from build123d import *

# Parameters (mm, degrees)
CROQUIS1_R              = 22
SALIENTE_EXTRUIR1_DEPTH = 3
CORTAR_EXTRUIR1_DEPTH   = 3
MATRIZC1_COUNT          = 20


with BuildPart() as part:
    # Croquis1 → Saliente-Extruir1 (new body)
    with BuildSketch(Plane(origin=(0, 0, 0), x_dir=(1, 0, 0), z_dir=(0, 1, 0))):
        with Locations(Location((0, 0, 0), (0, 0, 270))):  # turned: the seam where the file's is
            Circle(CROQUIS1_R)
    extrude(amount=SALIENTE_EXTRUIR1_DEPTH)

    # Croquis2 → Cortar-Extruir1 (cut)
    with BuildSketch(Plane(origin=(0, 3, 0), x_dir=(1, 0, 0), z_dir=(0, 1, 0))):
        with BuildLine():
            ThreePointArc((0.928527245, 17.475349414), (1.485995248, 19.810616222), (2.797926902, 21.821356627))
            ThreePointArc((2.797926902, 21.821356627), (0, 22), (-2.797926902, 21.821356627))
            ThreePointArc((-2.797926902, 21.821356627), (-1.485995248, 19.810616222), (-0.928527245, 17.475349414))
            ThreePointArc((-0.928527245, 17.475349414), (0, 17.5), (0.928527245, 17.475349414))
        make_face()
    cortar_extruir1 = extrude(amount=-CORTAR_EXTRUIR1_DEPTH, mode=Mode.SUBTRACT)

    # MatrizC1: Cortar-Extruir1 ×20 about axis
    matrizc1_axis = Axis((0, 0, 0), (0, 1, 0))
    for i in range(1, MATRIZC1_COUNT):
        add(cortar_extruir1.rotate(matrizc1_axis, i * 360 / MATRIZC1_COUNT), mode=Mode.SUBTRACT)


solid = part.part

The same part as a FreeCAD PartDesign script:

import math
import FreeCAD as App
import Part
import Sketcher
from FreeCAD import Vector
Q = App.Units.Quantity

doc = App.newDocument("Part")
params = doc.addObject("Spreadsheet::Sheet", "Params")
for row, (alias, value) in enumerate([
    ("sketch1_diameter", "44 mm"),
    ("pad1_length", "3 mm"),
    ("sketch2_radius", "22 mm"),
    ("sketch2_radius2", "17.5 mm"),
    ("pocket1_length", "3 mm"),
], start=1):
    params.set(f"A{row}", alias)
    params.set(f"B{row}", "=" + value)
    params.setAlias(f"B{row}", alias)

body = doc.addObject("PartDesign::Body", "Body")

# Sketch on XZ plane
sketch1 = body.newObject("Sketcher::SketchObject", "Sketch")
sketch1.AttachmentSupport = (doc.getObject("XZ_Plane"), [""])
sketch1.MapMode = "FlatFace"
sketch1.addGeometry(Part.Circle(Vector(0, 0, 0), Vector(0, 0, 1), 22), False)
sketch1.addConstraint(Sketcher.Constraint("Coincident", 0, 3, -1, 1))
sketch1.addConstraint(Sketcher.Constraint("Diameter", 0, Q("44 mm")))
sketch1.setExpression("Constraints[1]", "Params.sketch1_diameter")
pad1 = body.newObject("PartDesign::Pad", "Pad")
pad1.Profile = sketch1
pad1.setExpression("Length", "Params.pad1_length")
pad1.Reversed = True

# Sketch on XZ plane
sketch2 = body.newObject("Sketcher::SketchObject", "Sketch001")
sketch2.AttachmentSupport = (doc.getObject("XZ_Plane"), [""])
sketch2.MapMode = "FlatFace"
sketch2.AttachmentOffset = App.Placement(Vector(0, 0, -3), App.Rotation())
sketch2.addGeometry(Part.ArcOfCircle(Part.Circle(Vector(7.9, -17, 0), Vector(0, 0, 1), 7), math.radians(-176), math.radians(-137)), False)
sketch2.addGeometry(Part.ArcOfCircle(Part.Circle(Vector(0, 0, 0), Vector(0, 0, 1), 22), math.radians(-97.31), math.radians(-82.69)), False)
sketch2.addGeometry(Part.ArcOfCircle(Part.Circle(Vector(-7.9, -17, 0), Vector(0, 0, 1), 7), math.radians(-43), math.radians(-4)), False)
sketch2.addGeometry(Part.ArcOfCircle(Part.Circle(Vector(0, 0, 0), Vector(0, 0, 1), 17.5), math.radians(-93.04), math.radians(-86.96)), False)
sketch2.addConstraint(Sketcher.Constraint("Coincident", 0, 2, 1, 2))
sketch2.addConstraint(Sketcher.Constraint("Coincident", 1, 1, 2, 1))
sketch2.addConstraint(Sketcher.Constraint("Coincident", 2, 2, 3, 1))
sketch2.addConstraint(Sketcher.Constraint("Coincident", 3, 2, 0, 1))
sketch2.addConstraint(Sketcher.Constraint("Coincident", 1, 3, -1, 1))
sketch2.addConstraint(Sketcher.Constraint("Coincident", 3, 3, -1, 1))
sketch2.addConstraint(Sketcher.Constraint("Equal", 0, 2))
sketch2.addConstraint(Sketcher.Constraint("Symmetric", 0, 3, 2, 3, -2))
sketch2.addConstraint(Sketcher.Constraint("Radius", 1, Q("22 mm")))
sketch2.addConstraint(Sketcher.Constraint("Radius", 3, Q("17.5 mm")))
sketch2.addConstraint(Sketcher.Constraint("Radius", 0, Q("7.018441 mm")))
sketch2.addConstraint(Sketcher.Constraint("DistanceX", 1, 1, 2, 2, Q("1.8694 mm")))
sketch2.addConstraint(Sketcher.Constraint("DistanceX", -1, 1, 0, 3, Q("7.933289 mm")))
sketch2.setExpression("Constraints[8]", "Params.sketch2_radius")
sketch2.setExpression("Constraints[9]", "Params.sketch2_radius2")
pocket1 = body.newObject("PartDesign::Pocket", "Pocket")
pocket1.Profile = sketch2
pocket1.setExpression("Length", "Params.pocket1_length")
pocket1.Reversed = True
doc.recompute()

polarpattern = body.newObject("PartDesign::PolarPattern", "PolarPattern")
polarpattern.Originals = [pocket1]
polarpattern.Axis = (doc.getObject("Y_Axis"), [""])
polarpattern.Angle = 360
polarpattern.Occurrences = 20
body.Tip = polarpattern

doc.recompute()
